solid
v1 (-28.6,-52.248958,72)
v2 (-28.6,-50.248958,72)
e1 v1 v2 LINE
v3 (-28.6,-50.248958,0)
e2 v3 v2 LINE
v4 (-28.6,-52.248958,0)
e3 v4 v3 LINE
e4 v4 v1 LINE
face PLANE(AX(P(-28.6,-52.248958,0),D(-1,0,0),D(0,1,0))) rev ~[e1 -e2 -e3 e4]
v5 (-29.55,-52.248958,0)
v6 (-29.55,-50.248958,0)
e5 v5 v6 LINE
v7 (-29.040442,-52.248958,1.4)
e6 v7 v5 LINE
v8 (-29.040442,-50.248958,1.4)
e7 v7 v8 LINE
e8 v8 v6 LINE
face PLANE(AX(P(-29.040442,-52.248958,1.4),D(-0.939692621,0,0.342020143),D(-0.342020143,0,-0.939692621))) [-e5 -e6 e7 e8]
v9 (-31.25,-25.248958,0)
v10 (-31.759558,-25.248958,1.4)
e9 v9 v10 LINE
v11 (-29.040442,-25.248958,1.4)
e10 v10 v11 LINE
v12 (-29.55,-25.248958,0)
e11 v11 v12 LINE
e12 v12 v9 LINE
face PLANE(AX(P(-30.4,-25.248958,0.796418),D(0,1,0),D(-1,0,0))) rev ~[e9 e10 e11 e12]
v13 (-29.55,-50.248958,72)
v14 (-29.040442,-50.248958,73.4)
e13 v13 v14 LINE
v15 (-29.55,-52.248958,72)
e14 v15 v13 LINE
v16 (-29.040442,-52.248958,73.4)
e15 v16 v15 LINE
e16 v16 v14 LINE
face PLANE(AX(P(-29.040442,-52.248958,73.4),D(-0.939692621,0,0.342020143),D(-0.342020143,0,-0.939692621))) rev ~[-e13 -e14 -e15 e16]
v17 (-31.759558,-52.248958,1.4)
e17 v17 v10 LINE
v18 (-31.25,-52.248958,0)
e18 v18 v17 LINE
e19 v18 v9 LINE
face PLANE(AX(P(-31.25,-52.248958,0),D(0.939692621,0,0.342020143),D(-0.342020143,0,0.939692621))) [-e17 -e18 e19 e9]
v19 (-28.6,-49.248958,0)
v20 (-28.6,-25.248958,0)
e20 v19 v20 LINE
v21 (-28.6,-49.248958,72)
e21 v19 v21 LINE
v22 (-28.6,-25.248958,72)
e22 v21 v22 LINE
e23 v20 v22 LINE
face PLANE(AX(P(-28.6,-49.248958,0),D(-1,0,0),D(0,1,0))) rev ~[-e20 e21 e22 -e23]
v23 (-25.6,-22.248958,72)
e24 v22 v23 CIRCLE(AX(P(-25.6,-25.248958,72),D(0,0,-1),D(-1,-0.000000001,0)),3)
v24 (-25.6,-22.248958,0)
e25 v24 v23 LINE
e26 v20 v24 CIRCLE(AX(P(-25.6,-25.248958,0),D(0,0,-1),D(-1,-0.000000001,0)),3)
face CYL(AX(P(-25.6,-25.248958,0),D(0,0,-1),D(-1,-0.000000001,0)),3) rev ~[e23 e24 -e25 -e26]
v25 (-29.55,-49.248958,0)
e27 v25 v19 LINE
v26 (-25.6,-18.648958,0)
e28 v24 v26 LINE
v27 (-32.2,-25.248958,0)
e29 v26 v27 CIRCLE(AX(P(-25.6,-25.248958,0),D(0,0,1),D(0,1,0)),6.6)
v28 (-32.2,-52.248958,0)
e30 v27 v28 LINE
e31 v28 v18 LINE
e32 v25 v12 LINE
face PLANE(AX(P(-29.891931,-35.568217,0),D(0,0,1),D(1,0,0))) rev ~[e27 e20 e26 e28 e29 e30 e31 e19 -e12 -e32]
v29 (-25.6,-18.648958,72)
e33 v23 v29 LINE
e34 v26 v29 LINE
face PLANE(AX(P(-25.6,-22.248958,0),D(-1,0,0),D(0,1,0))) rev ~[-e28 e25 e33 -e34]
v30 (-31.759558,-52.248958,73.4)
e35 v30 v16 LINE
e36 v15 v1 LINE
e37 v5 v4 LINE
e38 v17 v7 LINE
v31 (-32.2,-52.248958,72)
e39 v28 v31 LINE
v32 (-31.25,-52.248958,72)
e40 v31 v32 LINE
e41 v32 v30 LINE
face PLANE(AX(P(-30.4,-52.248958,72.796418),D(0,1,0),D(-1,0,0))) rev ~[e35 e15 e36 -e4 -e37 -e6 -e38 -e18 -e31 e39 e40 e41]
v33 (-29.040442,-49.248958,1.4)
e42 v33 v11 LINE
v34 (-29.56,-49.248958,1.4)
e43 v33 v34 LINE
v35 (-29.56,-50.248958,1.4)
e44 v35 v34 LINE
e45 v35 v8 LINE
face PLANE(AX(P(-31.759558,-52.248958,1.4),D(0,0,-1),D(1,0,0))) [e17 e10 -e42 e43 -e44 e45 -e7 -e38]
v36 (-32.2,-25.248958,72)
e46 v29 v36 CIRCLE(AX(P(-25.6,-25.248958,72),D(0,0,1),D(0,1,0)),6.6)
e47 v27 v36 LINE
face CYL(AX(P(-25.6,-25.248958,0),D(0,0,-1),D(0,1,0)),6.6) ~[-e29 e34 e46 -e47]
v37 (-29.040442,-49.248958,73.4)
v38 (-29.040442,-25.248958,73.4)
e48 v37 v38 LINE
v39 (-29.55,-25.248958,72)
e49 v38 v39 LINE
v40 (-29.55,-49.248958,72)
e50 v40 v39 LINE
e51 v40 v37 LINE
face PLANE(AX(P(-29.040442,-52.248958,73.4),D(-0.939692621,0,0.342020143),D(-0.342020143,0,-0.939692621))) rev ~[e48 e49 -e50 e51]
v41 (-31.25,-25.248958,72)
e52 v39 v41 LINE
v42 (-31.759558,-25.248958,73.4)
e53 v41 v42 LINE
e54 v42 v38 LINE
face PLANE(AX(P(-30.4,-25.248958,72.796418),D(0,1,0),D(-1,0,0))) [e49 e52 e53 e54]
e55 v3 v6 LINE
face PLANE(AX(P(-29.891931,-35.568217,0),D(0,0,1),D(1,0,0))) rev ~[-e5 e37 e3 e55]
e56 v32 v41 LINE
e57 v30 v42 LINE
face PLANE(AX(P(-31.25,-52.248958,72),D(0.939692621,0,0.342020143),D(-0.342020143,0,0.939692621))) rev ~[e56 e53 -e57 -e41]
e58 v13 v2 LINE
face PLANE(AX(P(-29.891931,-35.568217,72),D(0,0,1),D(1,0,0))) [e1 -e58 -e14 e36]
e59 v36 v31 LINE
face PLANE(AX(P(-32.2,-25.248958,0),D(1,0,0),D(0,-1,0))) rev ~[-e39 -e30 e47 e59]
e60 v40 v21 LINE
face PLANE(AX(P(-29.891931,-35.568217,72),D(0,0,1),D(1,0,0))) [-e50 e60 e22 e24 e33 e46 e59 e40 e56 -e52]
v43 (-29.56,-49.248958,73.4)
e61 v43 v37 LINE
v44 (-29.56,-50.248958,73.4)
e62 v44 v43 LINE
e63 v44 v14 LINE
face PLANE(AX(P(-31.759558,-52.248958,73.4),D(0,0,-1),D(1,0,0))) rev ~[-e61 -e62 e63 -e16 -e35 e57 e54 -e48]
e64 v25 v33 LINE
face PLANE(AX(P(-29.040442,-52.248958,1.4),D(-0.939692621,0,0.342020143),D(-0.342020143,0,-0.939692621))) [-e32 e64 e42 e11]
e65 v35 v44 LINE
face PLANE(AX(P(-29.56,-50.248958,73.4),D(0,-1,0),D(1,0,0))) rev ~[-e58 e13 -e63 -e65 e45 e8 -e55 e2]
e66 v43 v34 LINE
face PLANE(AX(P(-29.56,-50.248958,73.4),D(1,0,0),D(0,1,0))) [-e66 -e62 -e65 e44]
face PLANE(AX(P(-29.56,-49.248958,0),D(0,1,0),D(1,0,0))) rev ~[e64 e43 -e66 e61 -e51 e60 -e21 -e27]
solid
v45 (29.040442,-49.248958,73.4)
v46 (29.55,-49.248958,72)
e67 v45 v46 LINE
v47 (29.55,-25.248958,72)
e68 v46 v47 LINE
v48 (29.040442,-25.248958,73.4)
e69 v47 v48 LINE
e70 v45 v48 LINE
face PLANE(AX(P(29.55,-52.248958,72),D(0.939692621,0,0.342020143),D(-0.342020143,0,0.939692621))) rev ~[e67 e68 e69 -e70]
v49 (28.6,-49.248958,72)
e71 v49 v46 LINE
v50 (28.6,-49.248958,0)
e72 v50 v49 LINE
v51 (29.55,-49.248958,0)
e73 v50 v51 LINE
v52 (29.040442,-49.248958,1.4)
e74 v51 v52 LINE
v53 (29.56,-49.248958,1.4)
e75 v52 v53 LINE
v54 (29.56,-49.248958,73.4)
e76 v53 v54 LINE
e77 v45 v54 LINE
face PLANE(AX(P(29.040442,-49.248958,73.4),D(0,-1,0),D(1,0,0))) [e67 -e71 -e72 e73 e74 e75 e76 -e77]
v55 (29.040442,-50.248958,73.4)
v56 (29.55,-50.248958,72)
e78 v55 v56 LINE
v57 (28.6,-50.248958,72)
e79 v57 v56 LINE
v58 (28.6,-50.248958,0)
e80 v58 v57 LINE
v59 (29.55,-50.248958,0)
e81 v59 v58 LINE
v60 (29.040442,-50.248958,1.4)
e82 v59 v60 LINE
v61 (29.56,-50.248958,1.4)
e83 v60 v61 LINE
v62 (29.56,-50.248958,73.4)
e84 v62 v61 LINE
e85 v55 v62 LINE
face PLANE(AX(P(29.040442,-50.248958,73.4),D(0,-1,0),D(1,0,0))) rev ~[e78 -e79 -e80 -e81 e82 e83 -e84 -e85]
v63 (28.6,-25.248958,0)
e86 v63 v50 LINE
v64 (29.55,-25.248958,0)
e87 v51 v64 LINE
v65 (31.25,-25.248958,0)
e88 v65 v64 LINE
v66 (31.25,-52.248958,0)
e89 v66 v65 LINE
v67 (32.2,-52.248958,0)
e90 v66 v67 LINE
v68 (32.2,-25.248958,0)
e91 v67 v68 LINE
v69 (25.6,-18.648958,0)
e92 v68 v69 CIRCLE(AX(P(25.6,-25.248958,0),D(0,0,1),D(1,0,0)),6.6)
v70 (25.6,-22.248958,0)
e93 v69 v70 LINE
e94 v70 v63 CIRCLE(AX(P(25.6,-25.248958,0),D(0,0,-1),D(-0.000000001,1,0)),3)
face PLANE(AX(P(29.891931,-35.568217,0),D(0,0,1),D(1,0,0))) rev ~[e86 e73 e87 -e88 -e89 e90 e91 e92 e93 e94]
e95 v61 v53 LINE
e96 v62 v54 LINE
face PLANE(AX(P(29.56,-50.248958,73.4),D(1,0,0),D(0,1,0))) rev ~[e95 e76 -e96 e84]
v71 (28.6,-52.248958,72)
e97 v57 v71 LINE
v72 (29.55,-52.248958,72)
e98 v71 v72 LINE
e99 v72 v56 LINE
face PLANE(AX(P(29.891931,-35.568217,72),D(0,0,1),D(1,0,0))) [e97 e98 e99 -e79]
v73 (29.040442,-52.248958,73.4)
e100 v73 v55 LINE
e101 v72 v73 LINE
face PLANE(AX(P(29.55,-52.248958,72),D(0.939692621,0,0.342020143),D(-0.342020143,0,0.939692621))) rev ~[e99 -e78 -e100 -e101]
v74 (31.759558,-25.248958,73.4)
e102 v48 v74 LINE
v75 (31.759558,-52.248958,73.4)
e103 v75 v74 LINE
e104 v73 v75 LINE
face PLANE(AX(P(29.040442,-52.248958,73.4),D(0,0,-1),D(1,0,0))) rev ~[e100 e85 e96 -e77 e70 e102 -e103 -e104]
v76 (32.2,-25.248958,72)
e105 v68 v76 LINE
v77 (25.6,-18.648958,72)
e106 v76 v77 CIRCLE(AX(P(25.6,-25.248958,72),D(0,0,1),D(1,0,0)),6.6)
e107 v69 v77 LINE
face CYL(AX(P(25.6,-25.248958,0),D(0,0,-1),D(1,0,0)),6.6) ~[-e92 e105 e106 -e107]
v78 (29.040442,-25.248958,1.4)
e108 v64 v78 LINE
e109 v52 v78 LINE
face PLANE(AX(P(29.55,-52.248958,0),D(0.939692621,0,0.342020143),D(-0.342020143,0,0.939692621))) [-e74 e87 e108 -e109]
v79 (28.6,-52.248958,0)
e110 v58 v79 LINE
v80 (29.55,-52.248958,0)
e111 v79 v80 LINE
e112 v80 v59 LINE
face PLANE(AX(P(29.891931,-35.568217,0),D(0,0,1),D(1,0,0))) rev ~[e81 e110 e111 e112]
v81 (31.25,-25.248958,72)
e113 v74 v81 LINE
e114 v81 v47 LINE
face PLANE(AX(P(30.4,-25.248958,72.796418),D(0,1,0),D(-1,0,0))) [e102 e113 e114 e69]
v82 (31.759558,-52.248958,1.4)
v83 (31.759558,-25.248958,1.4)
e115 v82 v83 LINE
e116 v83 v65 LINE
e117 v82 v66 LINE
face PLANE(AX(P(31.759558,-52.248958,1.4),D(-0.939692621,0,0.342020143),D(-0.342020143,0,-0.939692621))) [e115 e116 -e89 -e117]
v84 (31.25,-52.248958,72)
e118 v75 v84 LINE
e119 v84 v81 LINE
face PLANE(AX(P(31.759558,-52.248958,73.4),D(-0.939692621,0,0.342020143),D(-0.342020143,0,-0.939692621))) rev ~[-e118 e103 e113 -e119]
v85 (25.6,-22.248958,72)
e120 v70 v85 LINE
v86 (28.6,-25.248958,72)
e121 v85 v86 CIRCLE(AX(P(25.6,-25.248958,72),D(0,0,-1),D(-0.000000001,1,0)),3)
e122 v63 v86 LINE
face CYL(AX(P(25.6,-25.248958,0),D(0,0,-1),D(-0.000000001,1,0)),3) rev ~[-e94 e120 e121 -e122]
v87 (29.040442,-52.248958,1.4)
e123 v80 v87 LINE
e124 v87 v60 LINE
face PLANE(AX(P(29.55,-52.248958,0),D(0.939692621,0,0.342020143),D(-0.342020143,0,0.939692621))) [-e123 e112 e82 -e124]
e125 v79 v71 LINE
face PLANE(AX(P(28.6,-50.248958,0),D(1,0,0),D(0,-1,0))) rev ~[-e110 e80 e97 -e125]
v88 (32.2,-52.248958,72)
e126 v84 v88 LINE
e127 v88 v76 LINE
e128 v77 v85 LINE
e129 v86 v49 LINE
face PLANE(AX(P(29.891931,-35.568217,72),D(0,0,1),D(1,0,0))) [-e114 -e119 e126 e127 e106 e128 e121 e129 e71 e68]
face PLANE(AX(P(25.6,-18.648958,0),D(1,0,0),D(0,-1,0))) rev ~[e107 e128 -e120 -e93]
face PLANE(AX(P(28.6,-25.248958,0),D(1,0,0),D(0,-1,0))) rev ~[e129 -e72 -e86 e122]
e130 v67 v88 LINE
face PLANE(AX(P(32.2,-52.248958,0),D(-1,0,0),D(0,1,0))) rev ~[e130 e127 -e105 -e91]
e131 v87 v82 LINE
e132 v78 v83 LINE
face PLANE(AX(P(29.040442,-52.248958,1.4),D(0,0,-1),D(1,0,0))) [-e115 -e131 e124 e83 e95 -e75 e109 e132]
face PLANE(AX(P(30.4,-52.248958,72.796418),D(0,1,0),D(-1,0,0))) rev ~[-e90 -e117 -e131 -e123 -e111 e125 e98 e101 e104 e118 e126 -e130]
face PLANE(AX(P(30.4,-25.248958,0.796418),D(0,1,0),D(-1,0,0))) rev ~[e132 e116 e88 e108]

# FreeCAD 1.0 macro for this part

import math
import FreeCAD as App
import Part
import Sketcher

V = App.Vector
Q = App.Units.Quantity


def add_polygon(sketch, points):
    """Adds a closed chain of lines whose ends are joined by coincident constraints."""
    first, n = sketch.GeometryCount, len(points)
    for a, b in zip(points, points[1:] + points[:1]):
        sketch.addGeometry(Part.LineSegment(App.Vector(*a, 0), App.Vector(*b, 0)), False)
    for i in range(n):
        sketch.addConstraint(Sketcher.Constraint("Coincident", first + i, 2, first + (i + 1) % n, 1))

doc = App.newDocument("Part")
body = doc.addObject("PartDesign::Body", "Body")

# Sketch on XY plane
sketch1 = body.newObject("Sketcher::SketchObject", "Sketch")
sketch1.AttachmentSupport = (doc.getObject("XY_Plane"), [""])
sketch1.MapMode = "FlatFace"
sketch1.addGeometry([
    Part.LineSegment(V(28.6, -25.248958, 0), V(28.6, -49.248958, 0)),  # 0
    Part.LineSegment(V(28.6, -49.248958, 0), V(29.56, -49.248958, 0)),  # 1
    Part.LineSegment(V(29.56, -49.248958, 0), V(29.56, -50.248958, 0)),  # 2
    Part.LineSegment(V(29.56, -50.248958, 0), V(28.6, -50.248958, 0)),  # 3
    Part.LineSegment(V(28.6, -50.248958, 0), V(28.6, -52.248958, 0)),  # 4
    Part.LineSegment(V(28.6, -52.248958, 0), V(32.2, -52.248958, 0)),  # 5
    Part.LineSegment(V(32.2, -52.248958, 0), V(32.2, -25.248958, 0)),  # 6
    Part.ArcOfCircle(Part.Circle(V(25.6, -25.248958, 0), V(0, 0, 1), 6.6), math.radians(0), math.radians(90)),  # 7
    Part.LineSegment(V(25.6, -18.648958, 0), V(25.6, -22.248958, 0)),  # 8
    Part.ArcOfCircle(Part.Circle(V(25.6, -25.248958, 0), V(0, 0, 1), 3), math.radians(0), math.radians(90)),  # 9
], False)
sketch1.addConstraint([
    Sketcher.Constraint("Coincident", 0, 2, 1, 1),
    Sketcher.Constraint("Coincident", 1, 2, 2, 1),
    Sketcher.Constraint("Coincident", 2, 2, 3, 1),
    Sketcher.Constraint("Coincident", 3, 2, 4, 1),
    Sketcher.Constraint("Coincident", 4, 2, 5, 1),
    Sketcher.Constraint("Coincident", 5, 2, 6, 1),
    Sketcher.Constraint("Tangent", 6, 2, 7, 1),
    Sketcher.Constraint("Coincident", 7, 2, 8, 1),
    Sketcher.Constraint("Coincident", 8, 2, 9, 2),
    Sketcher.Constraint("Tangent", 9, 1, 0, 1),
    Sketcher.Constraint("Vertical", 0),
    Sketcher.Constraint("Horizontal", 1),
    Sketcher.Constraint("Vertical", 2),
    Sketcher.Constraint("Horizontal", 3),
    Sketcher.Constraint("Vertical", 4),
    Sketcher.Constraint("Horizontal", 5),
    Sketcher.Constraint("Vertical", 6),
    Sketcher.Constraint("Vertical", 8),
    Sketcher.Constraint("Coincident", 9, 3, 7, 3),
    Sketcher.Constraint("Vertical", 0, 2, 3, 2),
    Sketcher.Constraint("Vertical", 9, 3, 7, 2),
    Sketcher.Constraint("Radius", 9, Q("3 mm")),
    Sketcher.Constraint("Radius", 7, Q("6.6 mm")),
    Sketcher.Constraint("DistanceY", 0, 2, 0, 1, Q("24 mm")),
    Sketcher.Constraint("DistanceY", 2, 2, 2, 1, Q("1 mm")),
    Sketcher.Constraint("DistanceY", 4, 2, 4, 1, Q("2 mm")),
    Sketcher.Constraint("DistanceX", 1, 1, 1, 2, Q("0.96 mm")),
    Sketcher.Constraint("DistanceX", -1, 1, 7, 3, Q("25.6 mm")),
    Sketcher.Constraint("DistanceY", 7, 3, -1, 1, Q("25.248958 mm")),
])
pad1 = body.newObject("PartDesign::Pad", "Pad")
pad1.Profile = sketch1
pad1.Length = 72
body2 = doc.addObject("PartDesign::Body", "Body001")

# Sketch on XY plane
sketch2 = body2.newObject("Sketcher::SketchObject", "Sketch001")
sketch2.AttachmentSupport = (doc.getObject("XY_Plane001"), [""])
sketch2.MapMode = "FlatFace"
sketch2.addGeometry([
    Part.LineSegment(V(-25.6, -22.248958, 0), V(-25.6, -18.648958, 0)),  # 0
    Part.ArcOfCircle(Part.Circle(V(-25.6, -25.248958, 0), V(0, 0, 1), 6.6), math.radians(90), math.radians(180)),  # 1
    Part.LineSegment(V(-32.2, -25.248958, 0), V(-32.2, -52.248958, 0)),  # 2
    Part.LineSegment(V(-32.2, -52.248958, 0), V(-28.6, -52.248958, 0)),  # 3
    Part.LineSegment(V(-28.6, -52.248958, 0), V(-28.6, -50.248958, 0)),  # 4
    Part.LineSegment(V(-28.6, -50.248958, 0), V(-29.56, -50.248958, 0)),  # 5
    Part.LineSegment(V(-29.56, -50.248958, 0), V(-29.56, -49.248958, 0)),  # 6
    Part.LineSegment(V(-29.56, -49.248958, 0), V(-28.6, -49.248958, 0)),  # 7
    Part.LineSegment(V(-28.6, -49.248958, 0), V(-28.6, -25.248958, 0)),  # 8
    Part.ArcOfCircle(Part.Circle(V(-25.6, -25.248958, 0), V(0, 0, 1), 3), math.radians(90), math.radians(180)),  # 9
], False)
sketch2.addConstraint([
    Sketcher.Constraint("Coincident", 0, 2, 1, 1),
    Sketcher.Constraint("Tangent", 1, 2, 2, 1),
    Sketcher.Constraint("Coincident", 2, 2, 3, 1),
    Sketcher.Constraint("Coincident", 3, 2, 4, 1),
    Sketcher.Constraint("Coincident", 4, 2, 5, 1),
    Sketcher.Constraint("Coincident", 5, 2, 6, 1),
    Sketcher.Constraint("Coincident", 6, 2, 7, 1),
    Sketcher.Constraint("Coincident", 7, 2, 8, 1),
    Sketcher.Constraint("Tangent", 8, 2, 9, 2),
    Sketcher.Constraint("Coincident", 9, 1, 0, 1),
    Sketcher.Constraint("Vertical", 0),
    Sketcher.Constraint("Vertical", 2),
    Sketcher.Constraint("Horizontal", 3),
    Sketcher.Constraint("Vertical", 4),
    Sketcher.Constraint("Horizontal", 5),
    Sketcher.Constraint("Vertical", 6),
    Sketcher.Constraint("Horizontal", 7),
    Sketcher.Constraint("Vertical", 8),
    Sketcher.Constraint("Coincident", 9, 3, 1, 3),
    Sketcher.Constraint("Vertical", 9, 3, 0, 2),
    Sketcher.Constraint("Vertical", 4, 2, 7, 2),
    Sketcher.Constraint("Radius", 9, Q("3 mm")),
    Sketcher.Constraint("Radius", 1, Q("6.6 mm")),
    Sketcher.Constraint("DistanceY", 2, 2, 2, 1, Q("27 mm")),
    Sketcher.Constraint("DistanceY", 4, 1, 4, 2, Q("2 mm")),
    Sketcher.Constraint("DistanceY", 6, 1, 6, 2, Q("1 mm")),
    Sketcher.Constraint("DistanceX", 5, 2, 5, 1, Q("0.96 mm")),
    Sketcher.Constraint("DistanceX", 1, 3, -1, 1, Q("25.6 mm")),
    Sketcher.Constraint("DistanceY", 1, 3, -1, 1, Q("25.248958 mm")),
])
pad2 = body2.newObject("PartDesign::Pad", "Pad001")
pad2.Profile = sketch2
pad2.Length = 72
body.AllowCompound = True
doc.recompute()

boolean = body.newObject("PartDesign::Boolean", "Boolean")
boolean.Type = "Fuse"
boolean.addObjects([body2])

# Sketch on XZ plane
sketch3 = body.newObject("Sketcher::SketchObject", "Sketch002")
sketch3.AttachmentSupport = (doc.getObject("XZ_Plane"), [""])
sketch3.MapMode = "FlatFace"
sketch3.AttachmentOffset = App.Placement(V(0, 0, 52.248958), App.Rotation())
add_polygon(sketch3, [(-31.759558, 73.4), (-31.25, 72), (-29.55, 72), (-29.040442, 73.4)])  # lines 0-3
add_polygon(sketch3, [(29.040442, 73.4), (29.55, 72), (31.25, 72), (31.759558, 73.4)])  # lines 4-7
sketch3.addConstraint([
    Sketcher.Constraint("Horizontal", 1),
    Sketcher.Constraint("Horizontal", 3),
    Sketcher.Constraint("Horizontal", 5),
    Sketcher.Constraint("Horizontal", 7),
    Sketcher.Constraint("Symmetric", 1, 2, 4, 2, -2),
    Sketcher.Constraint("Symmetric", 3, 2, 6, 2, -2),
    Sketcher.Constraint("Parallel", 0, 4),
    Sketcher.Constraint("Parallel", 2, 6),
    Sketcher.Constraint("Equal", 1, 5),
    Sketcher.Constraint("Angle", 0, Q("-70 deg")),
    Sketcher.Constraint("DistanceX", 1, 1, 1, 2, Q("1.7 mm")),
    Sketcher.Constraint("DistanceY", -1, 1, 0, 2, Q("72 mm")),
    Sketcher.Constraint("DistanceY", -1, 1, 2, 2, Q("73.4 mm")),
    Sketcher.Constraint("DistanceX", 1, 2, 4, 2, Q("59.1 mm")),
])
pad3 = body.newObject("PartDesign::Pad", "Pad002")
pad3.Profile = sketch3
pad3.Length = 27
pad3.Reversed = True

# Sketch on XY plane
sketch4 = body.newObject("Sketcher::SketchObject", "Sketch003")
sketch4.AttachmentSupport = (doc.getObject("XY_Plane"), [""])
sketch4.MapMode = "FlatFace"
sketch4.AttachmentOffset = App.Placement(V(0, 0, 73.4), App.Rotation())
add_polygon(sketch4, [(-29.56, -49.248958), (-29.56, -50.248958), (-29.040442, -50.248958), (-29.040442, -49.248958)])  # lines 0-3
add_polygon(sketch4, [(29.040442, -49.248958), (29.040442, -50.248958), (29.56, -50.248958), (29.56, -49.248958)])  # lines 4-7
sketch4.addConstraint([
    Sketcher.Constraint("Vertical", 0),
    Sketcher.Constraint("Horizontal", 1),
    Sketcher.Constraint("Vertical", 2),
    Sketcher.Constraint("Horizontal", 3),
    Sketcher.Constraint("Vertical", 4),
    Sketcher.Constraint("Horizontal", 5),
    Sketcher.Constraint("Vertical", 6),
    Sketcher.Constraint("Horizontal", 7),
    Sketcher.Constraint("Symmetric", 1, 2, 4, 2, -2),
    Sketcher.Constraint("Symmetric", 3, 2, 6, 2, -2),
    Sketcher.Constraint("DistanceY", 0, 2, 0, 1, Q("1 mm")),
    Sketcher.Constraint("DistanceX", 0, 2, -1, 1, Q("29.56 mm")),
    Sketcher.Constraint("DistanceX", 1, 1, 1, 2, Q("0.519558 mm")),
    Sketcher.Constraint("DistanceY", 0, 2, -1, 1, Q("50.248958 mm")),
])
pocket1 = body.newObject("PartDesign::Pocket", "Pocket")
pocket1.Profile = sketch4
pocket1.Length = 1.4

# Sketch on XZ plane
sketch5 = body.newObject("Sketcher::SketchObject", "Sketch004")
sketch5.AttachmentSupport = (doc.getObject("XZ_Plane"), [""])
sketch5.MapMode = "FlatFace"
sketch5.AttachmentOffset = App.Placement(V(0, 0, 52.248958), App.Rotation())
add_polygon(sketch5, [(-31.759558, 1.4), (-31.25, 0), (-29.55, 0), (-29.040442, 1.4)])  # lines 0-3
add_polygon(sketch5, [(29.040442, 1.4), (29.55, 0), (31.25, 0), (31.759558, 1.4)])  # lines 4-7
sketch5.addConstraint([
    Sketcher.Constraint("Horizontal", 1),
    Sketcher.Constraint("Horizontal", 3),
    Sketcher.Constraint("Horizontal", 5),
    Sketcher.Constraint("Horizontal", 7),
    Sketcher.Constraint("Symmetric", 1, 2, 4, 2, -1, 1),
    Sketcher.Constraint("Symmetric", 0, 2, 5, 2, -2),
    Sketcher.Constraint("Symmetric", 3, 2, 6, 2, -2),
    Sketcher.Constraint("Parallel", 0, 4),
    Sketcher.Constraint("Parallel", 2, 6),
    Sketcher.Constraint("Angle", 0, Q("-70 deg")),
    Sketcher.Constraint("DistanceX", 1, 1, 1, 2, Q("1.7 mm")),
    Sketcher.Constraint("DistanceY", -1, 1, 2, 2, Q("1.4 mm")),
    Sketcher.Constraint("DistanceX", 1, 2, 4, 2, Q("59.1 mm")),
])
pocket2 = body.newObject("PartDesign::Pocket", "Pocket001")
pocket2.Profile = sketch5
pocket2.Length = 27

doc.recompute()
